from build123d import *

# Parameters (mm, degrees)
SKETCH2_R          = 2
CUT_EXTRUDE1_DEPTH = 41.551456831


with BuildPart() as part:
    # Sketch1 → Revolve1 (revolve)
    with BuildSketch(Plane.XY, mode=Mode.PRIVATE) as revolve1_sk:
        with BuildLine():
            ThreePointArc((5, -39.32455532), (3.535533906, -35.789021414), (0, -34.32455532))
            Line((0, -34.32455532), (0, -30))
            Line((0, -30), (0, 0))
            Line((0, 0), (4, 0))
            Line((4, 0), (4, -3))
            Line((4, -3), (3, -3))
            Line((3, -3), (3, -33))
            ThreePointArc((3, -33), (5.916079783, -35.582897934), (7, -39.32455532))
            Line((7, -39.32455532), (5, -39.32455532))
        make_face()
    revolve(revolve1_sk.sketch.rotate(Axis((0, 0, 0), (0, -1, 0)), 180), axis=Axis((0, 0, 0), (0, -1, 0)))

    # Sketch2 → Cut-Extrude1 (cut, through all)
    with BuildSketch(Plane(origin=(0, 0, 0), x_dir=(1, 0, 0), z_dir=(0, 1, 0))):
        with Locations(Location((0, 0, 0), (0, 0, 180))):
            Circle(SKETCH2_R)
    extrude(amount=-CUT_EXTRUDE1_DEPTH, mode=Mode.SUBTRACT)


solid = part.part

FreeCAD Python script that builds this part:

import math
import FreeCAD as App
import Part
import Sketcher
from FreeCAD import Vector
Q = App.Units.Quantity

doc = App.newDocument("Part")
body = doc.addObject("PartDesign::Body", "Body")

# Sketch on XY plane
sketch1 = body.newObject("Sketcher::SketchObject", "Sketch")
sketch1.AttachmentSupport = (doc.getObject("XY_Plane"), [""])
sketch1.MapMode = "FlatFace"
sketch1.addGeometry(Part.ArcOfCircle(Part.Circle(Vector(0, -39.3, 0), Vector(0, 0, 1), 5), math.radians(0), math.radians(90)), False)
sketch1.addGeometry(Part.LineSegment(Vector(5, -39.3, 0), Vector(7, -39.3, 0)), False)
sketch1.addGeometry(Part.ArcOfCircle(Part.Circle(Vector(0, -39.3, 0), Vector(0, 0, 1), 7), math.radians(0), math.radians(65)), False)
sketch1.addGeometry(Part.LineSegment(Vector(3, -33, 0), Vector(3, -3, 0)), False)
sketch1.addGeometry(Part.LineSegment(Vector(3, -3, 0), Vector(4, -3, 0)), False)
sketch1.addGeometry(Part.LineSegment(Vector(4, -3, 0), Vector(4, 0, 0)), False)
sketch1.addGeometry(Part.LineSegment(Vector(4, 0, 0), Vector(0, 0, 0)), False)
sketch1.addGeometry(Part.LineSegment(Vector(0, 0, 0), Vector(0, -34.3, 0)), False)
sketch1.addConstraint(Sketcher.Constraint("Coincident", 0, 1, 1, 1))
sketch1.addConstraint(Sketcher.Constraint("Coincident", 1, 2, 2, 1))
sketch1.addConstraint(Sketcher.Constraint("Coincident", 2, 2, 3, 1))
sketch1.addConstraint(Sketcher.Constraint("Coincident", 3, 2, 4, 1))
sketch1.addConstraint(Sketcher.Constraint("Coincident", 4, 2, 5, 1))
sketch1.addConstraint(Sketcher.Constraint("Coincident", 5, 2, 6, 1))
sketch1.addConstraint(Sketcher.Constraint("Coincident", 6, 2, 7, 1))
sketch1.addConstraint(Sketcher.Constraint("Coincident", 7, 2, 0, 2))
sketch1.addConstraint(Sketcher.Constraint("Horizontal", 1))
sketch1.addConstraint(Sketcher.Constraint("Vertical", 3))
sketch1.addConstraint(Sketcher.Constraint("Horizontal", 4))
sketch1.addConstraint(Sketcher.Constraint("Vertical", 5))
sketch1.addConstraint(Sketcher.Constraint("Horizontal", 6))
sketch1.addConstraint(Sketcher.Constraint("Vertical", 7))
sketch1.addConstraint(Sketcher.Constraint("Coincident", 6, 2, -1, 1))
sketch1.addConstraint(Sketcher.Constraint("Coincident", 2, 3, 0, 3))
sketch1.addConstraint(Sketcher.Constraint("PointOnObject", 0, 3, -2))
sketch1.addConstraint(Sketcher.Constraint("Horizontal", 2, 3, 0, 1))
sketch1.addConstraint(Sketcher.Constraint("Radius", 0, Q("5 mm")))
sketch1.addConstraint(Sketcher.Constraint("Radius", 2, Q("7 mm")))
sketch1.addConstraint(Sketcher.Constraint("DistanceX", 4, 1, 4, 2, Q("1 mm")))
sketch1.addConstraint(Sketcher.Constraint("DistanceX", 6, 2, 6, 1, Q("4 mm")))
sketch1.addConstraint(Sketcher.Constraint("DistanceY", 3, 1, 3, 2, Q("30 mm")))
sketch1.addConstraint(Sketcher.Constraint("DistanceY", 5, 1, 5, 2, Q("3 mm")))
revolution = body.newObject("PartDesign::Revolution", "Revolution")
revolution.Profile = sketch1
revolution.ReferenceAxis = (sketch1, ["V_Axis"])
revolution.Angle = 360

# Sketch on XZ plane
sketch2 = body.newObject("Sketcher::SketchObject", "Sketch001")
sketch2.AttachmentSupport = (doc.getObject("XZ_Plane"), [""])
sketch2.MapMode = "FlatFace"
sketch2.addGeometry(Part.Circle(Vector(0, 0, 0), Vector(0, 0, 1), 2), False)
sketch2.addConstraint(Sketcher.Constraint("Coincident", 0, 3, -1, 1))
sketch2.addConstraint(Sketcher.Constraint("Diameter", 0, Q("4 mm")))
pocket1 = body.newObject("PartDesign::Pocket", "Pocket")
pocket1.Profile = sketch2
pocket1.Type = "ThroughAll"
pocket1.Reversed = True

doc.recompute()
